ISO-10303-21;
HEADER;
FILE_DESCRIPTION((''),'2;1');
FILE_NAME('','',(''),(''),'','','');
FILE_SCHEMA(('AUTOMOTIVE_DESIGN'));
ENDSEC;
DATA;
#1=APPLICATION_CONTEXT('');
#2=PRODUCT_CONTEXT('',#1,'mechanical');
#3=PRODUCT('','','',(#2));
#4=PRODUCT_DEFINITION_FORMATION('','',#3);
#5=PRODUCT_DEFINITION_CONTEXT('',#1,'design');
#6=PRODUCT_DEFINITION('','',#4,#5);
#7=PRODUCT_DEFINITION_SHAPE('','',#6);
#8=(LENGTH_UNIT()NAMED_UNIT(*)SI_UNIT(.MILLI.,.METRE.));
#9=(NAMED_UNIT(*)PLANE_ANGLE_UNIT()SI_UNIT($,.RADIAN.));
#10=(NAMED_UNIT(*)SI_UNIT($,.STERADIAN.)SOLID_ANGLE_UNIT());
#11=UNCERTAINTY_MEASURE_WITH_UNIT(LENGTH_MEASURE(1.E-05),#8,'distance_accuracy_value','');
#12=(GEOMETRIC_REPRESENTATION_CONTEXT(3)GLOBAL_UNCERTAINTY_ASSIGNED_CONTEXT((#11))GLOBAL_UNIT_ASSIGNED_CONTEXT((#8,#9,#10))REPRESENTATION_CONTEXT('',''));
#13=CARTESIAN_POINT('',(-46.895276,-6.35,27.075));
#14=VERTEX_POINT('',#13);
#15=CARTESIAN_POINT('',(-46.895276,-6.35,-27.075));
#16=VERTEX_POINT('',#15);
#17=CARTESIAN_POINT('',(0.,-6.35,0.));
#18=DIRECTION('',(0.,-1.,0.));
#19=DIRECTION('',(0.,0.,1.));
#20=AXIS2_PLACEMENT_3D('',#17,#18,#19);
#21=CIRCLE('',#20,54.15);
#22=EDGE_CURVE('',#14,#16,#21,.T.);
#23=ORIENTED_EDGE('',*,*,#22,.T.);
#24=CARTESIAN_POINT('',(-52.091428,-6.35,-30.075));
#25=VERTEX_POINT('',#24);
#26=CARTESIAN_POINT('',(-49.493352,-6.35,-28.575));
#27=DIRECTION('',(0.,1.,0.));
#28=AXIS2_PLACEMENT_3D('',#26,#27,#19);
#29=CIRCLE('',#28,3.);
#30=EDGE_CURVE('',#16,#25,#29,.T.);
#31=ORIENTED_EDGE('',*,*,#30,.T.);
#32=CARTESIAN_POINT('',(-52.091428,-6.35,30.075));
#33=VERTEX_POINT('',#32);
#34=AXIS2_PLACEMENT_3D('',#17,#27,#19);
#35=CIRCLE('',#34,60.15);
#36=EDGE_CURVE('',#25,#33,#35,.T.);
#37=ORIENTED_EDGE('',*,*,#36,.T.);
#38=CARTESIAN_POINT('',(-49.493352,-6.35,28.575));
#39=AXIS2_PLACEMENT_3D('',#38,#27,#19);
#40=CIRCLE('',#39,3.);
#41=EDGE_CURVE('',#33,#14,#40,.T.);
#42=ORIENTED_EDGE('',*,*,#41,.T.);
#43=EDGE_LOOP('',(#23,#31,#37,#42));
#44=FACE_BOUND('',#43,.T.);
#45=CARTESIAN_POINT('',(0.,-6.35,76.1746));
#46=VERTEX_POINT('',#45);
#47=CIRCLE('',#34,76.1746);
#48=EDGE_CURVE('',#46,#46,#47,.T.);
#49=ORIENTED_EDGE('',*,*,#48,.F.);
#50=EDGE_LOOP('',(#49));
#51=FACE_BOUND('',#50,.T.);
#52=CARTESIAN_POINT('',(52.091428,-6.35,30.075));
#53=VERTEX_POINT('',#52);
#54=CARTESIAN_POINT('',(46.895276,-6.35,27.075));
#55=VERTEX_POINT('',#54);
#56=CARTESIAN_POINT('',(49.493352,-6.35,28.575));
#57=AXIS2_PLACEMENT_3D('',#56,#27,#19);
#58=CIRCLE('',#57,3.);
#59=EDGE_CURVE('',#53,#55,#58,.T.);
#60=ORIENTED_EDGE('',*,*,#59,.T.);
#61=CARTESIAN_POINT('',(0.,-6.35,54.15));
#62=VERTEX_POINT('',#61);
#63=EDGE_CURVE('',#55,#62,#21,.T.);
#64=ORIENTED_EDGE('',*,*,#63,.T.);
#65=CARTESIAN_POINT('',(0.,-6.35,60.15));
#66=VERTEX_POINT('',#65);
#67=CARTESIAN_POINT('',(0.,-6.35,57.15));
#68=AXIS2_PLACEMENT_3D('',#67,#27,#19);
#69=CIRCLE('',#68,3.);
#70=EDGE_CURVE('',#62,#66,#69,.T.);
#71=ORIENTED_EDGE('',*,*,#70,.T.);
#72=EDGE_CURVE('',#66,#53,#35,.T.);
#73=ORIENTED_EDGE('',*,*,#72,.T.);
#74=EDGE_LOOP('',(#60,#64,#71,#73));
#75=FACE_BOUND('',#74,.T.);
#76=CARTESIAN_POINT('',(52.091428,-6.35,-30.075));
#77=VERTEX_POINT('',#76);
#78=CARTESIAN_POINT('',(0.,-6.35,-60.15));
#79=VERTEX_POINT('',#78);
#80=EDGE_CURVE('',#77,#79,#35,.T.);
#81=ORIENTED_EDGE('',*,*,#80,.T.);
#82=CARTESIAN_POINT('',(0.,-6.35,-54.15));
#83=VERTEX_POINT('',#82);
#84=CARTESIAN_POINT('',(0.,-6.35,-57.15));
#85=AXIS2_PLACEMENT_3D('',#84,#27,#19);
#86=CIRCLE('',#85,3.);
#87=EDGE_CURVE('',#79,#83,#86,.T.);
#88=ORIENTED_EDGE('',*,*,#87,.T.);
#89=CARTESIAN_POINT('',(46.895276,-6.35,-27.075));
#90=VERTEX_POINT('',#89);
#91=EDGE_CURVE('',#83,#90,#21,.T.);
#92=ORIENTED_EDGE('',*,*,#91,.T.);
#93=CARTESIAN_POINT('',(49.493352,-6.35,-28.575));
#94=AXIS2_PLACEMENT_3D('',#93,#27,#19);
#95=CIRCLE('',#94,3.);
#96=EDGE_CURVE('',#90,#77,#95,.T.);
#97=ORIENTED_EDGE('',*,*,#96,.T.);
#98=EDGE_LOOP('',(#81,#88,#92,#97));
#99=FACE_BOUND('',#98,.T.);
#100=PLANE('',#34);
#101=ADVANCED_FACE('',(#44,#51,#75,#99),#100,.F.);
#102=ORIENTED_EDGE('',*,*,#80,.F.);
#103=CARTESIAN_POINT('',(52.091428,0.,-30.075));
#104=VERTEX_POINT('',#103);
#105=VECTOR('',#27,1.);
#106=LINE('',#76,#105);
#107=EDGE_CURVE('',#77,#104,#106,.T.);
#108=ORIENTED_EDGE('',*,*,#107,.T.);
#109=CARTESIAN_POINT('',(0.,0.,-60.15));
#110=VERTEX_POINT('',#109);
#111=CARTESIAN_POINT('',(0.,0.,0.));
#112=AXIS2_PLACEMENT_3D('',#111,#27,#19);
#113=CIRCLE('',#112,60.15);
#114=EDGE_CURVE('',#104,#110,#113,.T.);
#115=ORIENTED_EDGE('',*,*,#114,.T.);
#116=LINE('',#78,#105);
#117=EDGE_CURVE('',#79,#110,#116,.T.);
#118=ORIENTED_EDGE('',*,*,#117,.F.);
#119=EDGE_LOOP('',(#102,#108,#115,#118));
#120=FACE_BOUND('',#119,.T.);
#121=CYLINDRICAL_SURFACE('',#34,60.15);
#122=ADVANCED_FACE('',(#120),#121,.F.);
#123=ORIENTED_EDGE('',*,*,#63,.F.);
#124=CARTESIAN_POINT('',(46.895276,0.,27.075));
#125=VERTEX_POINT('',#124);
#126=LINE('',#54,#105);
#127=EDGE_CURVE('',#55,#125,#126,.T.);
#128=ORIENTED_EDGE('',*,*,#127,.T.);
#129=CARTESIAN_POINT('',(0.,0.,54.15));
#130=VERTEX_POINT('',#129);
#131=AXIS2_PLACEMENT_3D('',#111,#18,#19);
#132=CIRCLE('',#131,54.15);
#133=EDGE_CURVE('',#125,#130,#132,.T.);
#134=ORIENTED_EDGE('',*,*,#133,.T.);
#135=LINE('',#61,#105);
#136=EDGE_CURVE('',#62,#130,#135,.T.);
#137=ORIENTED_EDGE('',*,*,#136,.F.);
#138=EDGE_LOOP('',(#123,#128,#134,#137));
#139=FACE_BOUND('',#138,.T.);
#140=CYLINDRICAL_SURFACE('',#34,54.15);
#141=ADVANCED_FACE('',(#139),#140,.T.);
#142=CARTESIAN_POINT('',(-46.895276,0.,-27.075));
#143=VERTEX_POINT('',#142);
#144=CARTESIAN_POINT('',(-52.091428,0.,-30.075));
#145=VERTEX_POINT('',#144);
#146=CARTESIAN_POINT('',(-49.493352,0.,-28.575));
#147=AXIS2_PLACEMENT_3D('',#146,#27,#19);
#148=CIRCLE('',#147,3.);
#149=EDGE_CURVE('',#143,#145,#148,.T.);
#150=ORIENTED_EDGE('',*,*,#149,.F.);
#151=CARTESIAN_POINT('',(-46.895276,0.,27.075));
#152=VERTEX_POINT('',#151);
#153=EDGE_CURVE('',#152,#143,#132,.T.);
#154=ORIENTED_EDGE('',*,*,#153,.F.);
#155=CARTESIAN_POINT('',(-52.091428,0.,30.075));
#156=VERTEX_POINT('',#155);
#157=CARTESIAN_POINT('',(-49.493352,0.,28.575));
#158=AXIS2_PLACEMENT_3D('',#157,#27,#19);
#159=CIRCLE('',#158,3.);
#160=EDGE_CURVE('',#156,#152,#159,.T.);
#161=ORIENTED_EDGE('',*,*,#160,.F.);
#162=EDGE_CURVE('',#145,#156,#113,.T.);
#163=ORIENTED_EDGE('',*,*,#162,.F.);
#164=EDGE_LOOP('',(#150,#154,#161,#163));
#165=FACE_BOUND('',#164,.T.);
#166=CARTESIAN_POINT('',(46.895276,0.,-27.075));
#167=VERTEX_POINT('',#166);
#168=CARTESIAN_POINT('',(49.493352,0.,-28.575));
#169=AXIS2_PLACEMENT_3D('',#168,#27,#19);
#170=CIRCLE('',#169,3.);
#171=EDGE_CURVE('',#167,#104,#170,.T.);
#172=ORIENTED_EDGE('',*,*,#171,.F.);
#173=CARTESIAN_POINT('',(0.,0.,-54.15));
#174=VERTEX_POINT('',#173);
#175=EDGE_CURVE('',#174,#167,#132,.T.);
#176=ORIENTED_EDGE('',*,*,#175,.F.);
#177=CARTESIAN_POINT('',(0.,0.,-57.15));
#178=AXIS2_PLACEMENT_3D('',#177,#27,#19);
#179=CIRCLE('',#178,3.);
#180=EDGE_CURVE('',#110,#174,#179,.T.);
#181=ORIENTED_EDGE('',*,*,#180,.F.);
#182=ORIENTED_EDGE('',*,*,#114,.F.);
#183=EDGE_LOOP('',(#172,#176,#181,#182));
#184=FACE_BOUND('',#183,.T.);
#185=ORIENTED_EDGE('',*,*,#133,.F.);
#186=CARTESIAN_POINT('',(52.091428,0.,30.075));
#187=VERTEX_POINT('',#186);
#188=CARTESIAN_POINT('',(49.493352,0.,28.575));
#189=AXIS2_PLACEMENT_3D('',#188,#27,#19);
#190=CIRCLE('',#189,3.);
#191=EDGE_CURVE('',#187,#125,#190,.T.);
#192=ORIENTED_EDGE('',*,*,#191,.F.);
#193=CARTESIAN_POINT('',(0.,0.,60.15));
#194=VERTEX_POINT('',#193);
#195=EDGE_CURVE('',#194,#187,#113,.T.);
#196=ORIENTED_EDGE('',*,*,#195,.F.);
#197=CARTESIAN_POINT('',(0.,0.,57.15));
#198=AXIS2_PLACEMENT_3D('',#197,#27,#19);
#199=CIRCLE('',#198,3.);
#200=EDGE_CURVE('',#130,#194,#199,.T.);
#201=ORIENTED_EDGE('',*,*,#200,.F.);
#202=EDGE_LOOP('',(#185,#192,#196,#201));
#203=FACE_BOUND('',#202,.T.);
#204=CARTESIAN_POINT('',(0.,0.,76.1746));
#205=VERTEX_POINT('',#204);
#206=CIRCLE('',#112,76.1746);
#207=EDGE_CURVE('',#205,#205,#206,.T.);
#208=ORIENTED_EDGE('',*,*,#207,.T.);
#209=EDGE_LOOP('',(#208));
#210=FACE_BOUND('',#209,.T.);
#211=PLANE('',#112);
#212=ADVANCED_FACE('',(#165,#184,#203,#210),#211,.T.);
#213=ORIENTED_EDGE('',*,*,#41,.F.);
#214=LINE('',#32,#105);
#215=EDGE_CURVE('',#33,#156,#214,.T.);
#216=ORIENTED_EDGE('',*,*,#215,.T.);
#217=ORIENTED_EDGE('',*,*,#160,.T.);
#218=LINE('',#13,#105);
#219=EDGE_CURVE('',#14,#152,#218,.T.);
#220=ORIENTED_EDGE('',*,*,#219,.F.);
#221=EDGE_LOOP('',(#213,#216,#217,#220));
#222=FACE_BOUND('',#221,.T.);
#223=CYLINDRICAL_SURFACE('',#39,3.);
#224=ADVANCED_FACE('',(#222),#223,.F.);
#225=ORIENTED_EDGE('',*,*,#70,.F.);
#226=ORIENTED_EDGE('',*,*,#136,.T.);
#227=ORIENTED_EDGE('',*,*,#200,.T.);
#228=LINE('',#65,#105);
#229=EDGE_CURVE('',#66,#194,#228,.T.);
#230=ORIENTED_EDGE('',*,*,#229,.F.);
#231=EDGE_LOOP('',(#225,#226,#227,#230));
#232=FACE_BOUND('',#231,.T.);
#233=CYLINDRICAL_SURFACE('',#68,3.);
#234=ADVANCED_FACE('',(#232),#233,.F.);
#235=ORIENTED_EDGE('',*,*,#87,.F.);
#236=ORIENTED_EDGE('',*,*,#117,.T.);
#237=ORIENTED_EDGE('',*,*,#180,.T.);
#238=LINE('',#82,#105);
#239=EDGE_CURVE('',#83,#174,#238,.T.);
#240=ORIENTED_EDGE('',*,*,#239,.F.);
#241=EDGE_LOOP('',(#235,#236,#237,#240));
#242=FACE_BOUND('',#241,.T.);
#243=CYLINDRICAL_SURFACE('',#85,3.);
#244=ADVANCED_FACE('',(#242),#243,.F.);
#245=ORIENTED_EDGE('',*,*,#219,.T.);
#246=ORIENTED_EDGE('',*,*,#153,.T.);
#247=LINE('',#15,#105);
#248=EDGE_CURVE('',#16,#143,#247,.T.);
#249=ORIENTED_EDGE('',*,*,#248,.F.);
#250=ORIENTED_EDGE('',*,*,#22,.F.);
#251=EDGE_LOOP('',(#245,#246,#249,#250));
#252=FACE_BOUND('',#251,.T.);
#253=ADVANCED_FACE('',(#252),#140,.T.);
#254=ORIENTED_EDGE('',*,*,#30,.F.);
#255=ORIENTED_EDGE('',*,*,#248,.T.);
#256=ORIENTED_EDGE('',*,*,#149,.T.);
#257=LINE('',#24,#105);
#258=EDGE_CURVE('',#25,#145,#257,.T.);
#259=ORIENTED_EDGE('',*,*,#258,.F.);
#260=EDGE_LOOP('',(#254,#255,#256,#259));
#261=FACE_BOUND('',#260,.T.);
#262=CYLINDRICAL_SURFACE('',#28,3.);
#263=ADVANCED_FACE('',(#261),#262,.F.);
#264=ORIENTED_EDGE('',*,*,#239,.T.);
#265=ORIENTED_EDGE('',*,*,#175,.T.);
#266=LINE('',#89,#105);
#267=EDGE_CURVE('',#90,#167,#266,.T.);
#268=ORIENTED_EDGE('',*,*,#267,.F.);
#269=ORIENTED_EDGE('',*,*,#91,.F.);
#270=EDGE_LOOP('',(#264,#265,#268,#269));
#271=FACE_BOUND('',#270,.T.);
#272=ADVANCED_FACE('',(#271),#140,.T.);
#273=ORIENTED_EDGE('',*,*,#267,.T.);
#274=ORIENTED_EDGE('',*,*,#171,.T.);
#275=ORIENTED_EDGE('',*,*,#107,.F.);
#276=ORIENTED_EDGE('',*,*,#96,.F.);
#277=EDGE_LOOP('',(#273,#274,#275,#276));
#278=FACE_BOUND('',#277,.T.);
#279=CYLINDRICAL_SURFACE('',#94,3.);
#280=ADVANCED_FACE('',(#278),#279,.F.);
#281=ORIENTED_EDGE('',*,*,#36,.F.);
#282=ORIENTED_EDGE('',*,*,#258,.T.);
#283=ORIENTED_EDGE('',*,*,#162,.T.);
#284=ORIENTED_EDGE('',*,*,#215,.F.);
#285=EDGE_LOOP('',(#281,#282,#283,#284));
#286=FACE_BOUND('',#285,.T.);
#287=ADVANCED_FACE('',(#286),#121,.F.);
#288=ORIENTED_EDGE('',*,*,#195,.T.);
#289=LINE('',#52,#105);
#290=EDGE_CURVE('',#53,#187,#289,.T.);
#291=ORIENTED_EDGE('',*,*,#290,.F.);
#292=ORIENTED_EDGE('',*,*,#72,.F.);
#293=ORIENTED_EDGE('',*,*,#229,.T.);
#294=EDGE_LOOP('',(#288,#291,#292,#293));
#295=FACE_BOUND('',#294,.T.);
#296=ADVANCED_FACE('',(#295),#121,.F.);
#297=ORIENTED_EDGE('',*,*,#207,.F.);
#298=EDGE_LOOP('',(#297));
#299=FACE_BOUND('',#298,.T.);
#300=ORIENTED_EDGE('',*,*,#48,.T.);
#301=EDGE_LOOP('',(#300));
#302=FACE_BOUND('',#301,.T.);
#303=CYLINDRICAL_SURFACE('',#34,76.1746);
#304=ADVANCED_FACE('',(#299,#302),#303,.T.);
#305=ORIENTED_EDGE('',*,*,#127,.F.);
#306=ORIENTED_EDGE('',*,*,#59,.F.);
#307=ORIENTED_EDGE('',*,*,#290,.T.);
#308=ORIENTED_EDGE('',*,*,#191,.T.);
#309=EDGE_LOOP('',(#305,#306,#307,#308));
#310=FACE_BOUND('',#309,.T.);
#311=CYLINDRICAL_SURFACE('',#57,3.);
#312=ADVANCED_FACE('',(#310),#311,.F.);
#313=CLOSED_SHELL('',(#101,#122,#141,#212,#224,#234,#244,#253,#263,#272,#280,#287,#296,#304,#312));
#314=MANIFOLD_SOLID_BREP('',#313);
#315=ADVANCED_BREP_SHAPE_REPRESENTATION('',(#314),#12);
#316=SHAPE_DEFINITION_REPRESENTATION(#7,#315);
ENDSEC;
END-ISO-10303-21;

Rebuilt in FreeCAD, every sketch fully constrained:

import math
import FreeCAD as App
import Part
import Sketcher
Q = App.Units.Quantity

doc = App.newDocument("Part")
params = doc.addObject("Spreadsheet::Sheet", "Params")
for row, (alias, value) in enumerate([
    ("sketch1_radius", "3 mm"),
    ("sketch1_radius2", "54.15 mm"),
    ("sketch1_height", "1.5 mm"),
    ("pad1_length", "6.35 mm"),
], start=1):
    params.set(f"A{row}", alias)
    params.set(f"B{row}", "=" + value)
    params.setAlias(f"B{row}", alias)

body = doc.addObject("PartDesign::Body", "Body")

# Sketch on XZ plane
sketch1 = doc.addObject("Sketcher::SketchObject", "Sketch")
body.addObject(sketch1)
sketch1.AttachmentSupport = (doc.XZ_Plane, [""])
sketch1.MapMode = "FlatFace"
sketch1.addGeometry(Part.Circle(App.Vector(0, 0, 0), App.Vector(0, 0, 1), 76.2), False)
sketch1.addGeometry(Part.ArcOfCircle(Part.Circle(App.Vector(-49.5, -28.6, 0), App.Vector(0, 0, 1), 3), math.radians(-150), math.radians(30)), False)
sketch1.addGeometry(Part.ArcOfCircle(Part.Circle(App.Vector(0, 0, 0), App.Vector(0, 0, 1), 54.2), math.radians(150), math.radians(210)), False)
sketch1.addGeometry(Part.ArcOfCircle(Part.Circle(App.Vector(-49.5, 28.6, 0), App.Vector(0, 0, 1), 3), math.radians(-30), math.radians(150)), False)
sketch1.addGeometry(Part.ArcOfCircle(Part.Circle(App.Vector(0, 0, 0), App.Vector(0, 0, 1), 60.1), math.radians(150), math.radians(210)), False)
sketch1.addGeometry(Part.ArcOfCircle(Part.Circle(App.Vector(0, 57.1, 0), App.Vector(0, 0, 1), 3), math.radians(90), math.radians(270)), False)
sketch1.addGeometry(Part.ArcOfCircle(Part.Circle(App.Vector(0, 0, 0), App.Vector(0, 0, 1), 54.2), math.radians(30), math.radians(90)), False)
sketch1.addGeometry(Part.ArcOfCircle(Part.Circle(App.Vector(49.5, 28.6, 0), App.Vector(0, 0, 1), 3), math.radians(-150), math.radians(30)), False)
sketch1.addGeometry(Part.ArcOfCircle(Part.Circle(App.Vector(0, 0, 0), App.Vector(0, 0, 1), 60.1), math.radians(30), math.radians(90)), False)
sketch1.addGeometry(Part.ArcOfCircle(Part.Circle(App.Vector(0, 0, 0), App.Vector(0, 0, 1), 60.1), math.radians(-90), math.radians(-30)), False)
sketch1.addGeometry(Part.ArcOfCircle(Part.Circle(App.Vector(49.5, -28.6, 0), App.Vector(0, 0, 1), 3), math.radians(-30), math.radians(150)), False)
sketch1.addGeometry(Part.ArcOfCircle(Part.Circle(App.Vector(0, 0, 0), App.Vector(0, 0, 1), 54.2), math.radians(-90), math.radians(-30)), False)
sketch1.addGeometry(Part.ArcOfCircle(Part.Circle(App.Vector(0, -57.1, 0), App.Vector(0, 0, 1), 3), math.radians(90), math.radians(270)), False)
sketch1.addConstraint(Sketcher.Constraint("Tangent", 1, 2, 2, 2))
sketch1.addConstraint(Sketcher.Constraint("Tangent", 2, 1, 3, 1))
sketch1.addConstraint(Sketcher.Constraint("Tangent", 3, 2, 4, 1))
sketch1.addConstraint(Sketcher.Constraint("Tangent", 4, 2, 1, 1))
sketch1.addConstraint(Sketcher.Constraint("Tangent", 5, 2, 6, 2))
sketch1.addConstraint(Sketcher.Constraint("Tangent", 6, 1, 7, 1))
sketch1.addConstraint(Sketcher.Constraint("Tangent", 7, 2, 8, 1))
sketch1.addConstraint(Sketcher.Constraint("Tangent", 8, 2, 5, 1))
sketch1.addConstraint(Sketcher.Constraint("Tangent", 9, 2, 10, 1))
sketch1.addConstraint(Sketcher.Constraint("Tangent", 10, 2, 11, 2))
sketch1.addConstraint(Sketcher.Constraint("Tangent", 11, 1, 12, 1))
sketch1.addConstraint(Sketcher.Constraint("Tangent", 12, 2, 9, 1))
sketch1.addConstraint(Sketcher.Constraint("Coincident", 0, 3, -1, 1))
sketch1.addConstraint(Sketcher.Constraint("Coincident", 2, 3, -1, 1))
sketch1.addConstraint(Sketcher.Constraint("Coincident", 4, 3, -1, 1))
sketch1.addConstraint(Sketcher.Constraint("Coincident", 6, 3, -1, 1))
sketch1.addConstraint(Sketcher.Constraint("Coincident", 8, 3, -1, 1))
sketch1.addConstraint(Sketcher.Constraint("Coincident", 9, 3, -1, 1))
sketch1.addConstraint(Sketcher.Constraint("Coincident", 11, 3, -1, 1))
sketch1.addConstraint(Sketcher.Constraint("Equal", 3, 5))
sketch1.addConstraint(Sketcher.Constraint("Equal", 2, 6))
sketch1.addConstraint(Sketcher.Constraint("Equal", 8, 9))
sketch1.addConstraint(Sketcher.Constraint("Equal", 7, 10))
sketch1.addConstraint(Sketcher.Constraint("PointOnObject", 5, 3, -2))
sketch1.addConstraint(Sketcher.Constraint("PointOnObject", 12, 3, -2))
sketch1.addConstraint(Sketcher.Constraint("Horizontal", 3, 3, 7, 3))
sketch1.addConstraint(Sketcher.Constraint("Horizontal", 1, 3, 10, 3))
sketch1.addConstraint(Sketcher.Constraint("Vertical", 1, 3, 3, 3))
sketch1.addConstraint(Sketcher.Constraint("Radius", 1, Q("3 mm")))
sketch1.addConstraint(Sketcher.Constraint("Radius", 2, Q("54.15 mm")))
sketch1.addConstraint(Sketcher.Constraint("Diameter", 0, Q("152.3492 mm")))
sketch1.addConstraint(Sketcher.Constraint("DistanceY", 1, 3, 1, 2, Q("1.5 mm")))
sketch1.setExpression("Constraints[28]", "Params.sketch1_radius")
sketch1.setExpression("Constraints[29]", "Params.sketch1_radius2")
sketch1.setExpression("Constraints[31]", "Params.sketch1_height")
pad1 = doc.addObject("PartDesign::Pad", "Pad")
body.addObject(pad1)
pad1.Profile = sketch1
pad1.setExpression("Length", "Params.pad1_length")

doc.recompute()
